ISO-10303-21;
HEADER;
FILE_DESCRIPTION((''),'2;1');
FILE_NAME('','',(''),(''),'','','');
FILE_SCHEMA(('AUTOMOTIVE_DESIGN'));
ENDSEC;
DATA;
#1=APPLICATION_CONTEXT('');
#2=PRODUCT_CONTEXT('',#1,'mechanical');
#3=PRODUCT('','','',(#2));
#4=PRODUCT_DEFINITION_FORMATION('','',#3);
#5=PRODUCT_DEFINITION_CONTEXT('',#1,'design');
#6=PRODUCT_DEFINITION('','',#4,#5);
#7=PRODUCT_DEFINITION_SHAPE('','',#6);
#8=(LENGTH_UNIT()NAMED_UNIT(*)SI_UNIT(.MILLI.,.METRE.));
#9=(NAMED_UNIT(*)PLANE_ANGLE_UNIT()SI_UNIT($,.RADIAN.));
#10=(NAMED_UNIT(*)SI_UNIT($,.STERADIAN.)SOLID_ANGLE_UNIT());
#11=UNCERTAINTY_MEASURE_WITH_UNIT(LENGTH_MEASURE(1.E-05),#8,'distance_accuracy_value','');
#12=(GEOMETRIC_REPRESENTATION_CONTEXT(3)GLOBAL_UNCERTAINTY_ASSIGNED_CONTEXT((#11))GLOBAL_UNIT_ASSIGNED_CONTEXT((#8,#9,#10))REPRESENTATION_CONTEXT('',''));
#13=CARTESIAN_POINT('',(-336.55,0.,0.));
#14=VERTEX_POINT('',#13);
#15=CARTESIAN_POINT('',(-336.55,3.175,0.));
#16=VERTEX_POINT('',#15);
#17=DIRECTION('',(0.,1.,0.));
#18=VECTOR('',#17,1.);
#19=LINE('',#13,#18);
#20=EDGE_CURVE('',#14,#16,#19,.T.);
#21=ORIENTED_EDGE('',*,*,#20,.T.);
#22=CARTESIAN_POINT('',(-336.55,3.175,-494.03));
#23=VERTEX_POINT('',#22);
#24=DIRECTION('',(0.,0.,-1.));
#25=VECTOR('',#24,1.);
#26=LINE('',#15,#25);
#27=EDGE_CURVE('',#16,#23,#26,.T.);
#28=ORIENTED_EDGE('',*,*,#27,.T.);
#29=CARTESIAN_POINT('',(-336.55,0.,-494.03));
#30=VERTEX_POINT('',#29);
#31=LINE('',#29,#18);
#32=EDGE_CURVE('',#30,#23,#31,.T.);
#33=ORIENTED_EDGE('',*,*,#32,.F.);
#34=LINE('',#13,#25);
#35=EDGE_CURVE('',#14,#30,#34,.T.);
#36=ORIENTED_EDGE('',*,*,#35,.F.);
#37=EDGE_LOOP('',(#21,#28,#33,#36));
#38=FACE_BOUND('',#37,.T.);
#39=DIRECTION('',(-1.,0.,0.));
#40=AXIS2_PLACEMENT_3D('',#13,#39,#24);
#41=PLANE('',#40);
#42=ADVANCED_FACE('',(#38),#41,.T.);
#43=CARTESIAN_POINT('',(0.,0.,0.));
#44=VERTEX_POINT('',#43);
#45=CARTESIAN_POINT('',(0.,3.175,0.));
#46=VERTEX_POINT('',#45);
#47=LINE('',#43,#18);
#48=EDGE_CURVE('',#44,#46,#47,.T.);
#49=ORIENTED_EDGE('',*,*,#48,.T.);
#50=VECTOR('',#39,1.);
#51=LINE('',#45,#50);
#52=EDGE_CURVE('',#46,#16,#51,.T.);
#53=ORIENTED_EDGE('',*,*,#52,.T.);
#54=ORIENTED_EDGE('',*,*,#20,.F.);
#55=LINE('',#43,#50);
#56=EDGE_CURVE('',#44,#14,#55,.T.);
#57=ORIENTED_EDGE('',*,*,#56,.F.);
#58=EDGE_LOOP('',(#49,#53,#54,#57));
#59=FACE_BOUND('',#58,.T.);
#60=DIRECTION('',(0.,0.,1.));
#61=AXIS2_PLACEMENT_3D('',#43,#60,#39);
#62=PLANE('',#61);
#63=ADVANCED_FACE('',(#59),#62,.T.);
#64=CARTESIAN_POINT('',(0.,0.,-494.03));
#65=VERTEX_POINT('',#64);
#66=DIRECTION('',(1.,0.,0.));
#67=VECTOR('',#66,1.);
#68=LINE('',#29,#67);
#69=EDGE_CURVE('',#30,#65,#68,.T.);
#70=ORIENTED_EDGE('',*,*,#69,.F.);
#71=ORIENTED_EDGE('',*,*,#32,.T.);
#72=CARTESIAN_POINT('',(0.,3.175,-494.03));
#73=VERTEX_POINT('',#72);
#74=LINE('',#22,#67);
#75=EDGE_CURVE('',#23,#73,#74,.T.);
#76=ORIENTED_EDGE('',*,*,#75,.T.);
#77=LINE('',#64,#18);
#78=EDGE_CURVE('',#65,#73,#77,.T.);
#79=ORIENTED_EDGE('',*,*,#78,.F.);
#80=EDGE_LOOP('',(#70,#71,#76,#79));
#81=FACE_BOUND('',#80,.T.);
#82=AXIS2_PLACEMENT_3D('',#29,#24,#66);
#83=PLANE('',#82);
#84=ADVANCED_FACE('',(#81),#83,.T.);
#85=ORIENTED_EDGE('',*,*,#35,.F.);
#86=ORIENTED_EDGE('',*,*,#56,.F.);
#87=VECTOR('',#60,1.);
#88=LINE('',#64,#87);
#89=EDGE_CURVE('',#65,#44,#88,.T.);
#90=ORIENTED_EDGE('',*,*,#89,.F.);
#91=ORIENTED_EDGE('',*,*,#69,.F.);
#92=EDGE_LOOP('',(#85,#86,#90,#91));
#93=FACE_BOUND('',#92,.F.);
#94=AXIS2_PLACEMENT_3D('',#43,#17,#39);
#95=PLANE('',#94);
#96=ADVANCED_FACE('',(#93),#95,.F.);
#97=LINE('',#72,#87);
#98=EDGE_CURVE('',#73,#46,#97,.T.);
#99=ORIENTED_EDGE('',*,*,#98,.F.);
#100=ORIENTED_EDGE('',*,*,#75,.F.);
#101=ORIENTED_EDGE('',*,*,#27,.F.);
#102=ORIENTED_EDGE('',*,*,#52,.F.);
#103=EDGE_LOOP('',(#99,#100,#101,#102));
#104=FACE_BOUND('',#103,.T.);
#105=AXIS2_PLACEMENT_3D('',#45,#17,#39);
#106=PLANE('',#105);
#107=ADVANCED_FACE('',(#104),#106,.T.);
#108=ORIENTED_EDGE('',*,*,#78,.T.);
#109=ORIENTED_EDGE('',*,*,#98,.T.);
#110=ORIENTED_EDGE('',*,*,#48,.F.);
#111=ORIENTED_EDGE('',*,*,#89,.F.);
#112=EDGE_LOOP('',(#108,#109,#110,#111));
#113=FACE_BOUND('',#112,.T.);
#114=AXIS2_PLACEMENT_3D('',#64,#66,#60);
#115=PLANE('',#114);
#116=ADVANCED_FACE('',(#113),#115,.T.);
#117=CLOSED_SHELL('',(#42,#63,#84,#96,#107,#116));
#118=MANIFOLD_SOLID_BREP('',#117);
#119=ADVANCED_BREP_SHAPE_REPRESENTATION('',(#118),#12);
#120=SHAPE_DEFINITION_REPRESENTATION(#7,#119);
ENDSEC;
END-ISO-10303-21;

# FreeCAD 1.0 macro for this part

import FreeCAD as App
import Part
import Sketcher
from FreeCAD import Vector
Q = App.Units.Quantity


def add_polygon(sketch, points):
    """Adds a closed chain of lines whose ends are joined by coincident constraints."""
    first, n = sketch.GeometryCount, len(points)
    for a, b in zip(points, points[1:] + points[:1]):
        sketch.addGeometry(Part.LineSegment(App.Vector(*a, 0), App.Vector(*b, 0)), False)
    for i in range(n):
        sketch.addConstraint(Sketcher.Constraint("Coincident", first + i, 2, first + (i + 1) % n, 1))

doc = App.newDocument("Part")
body = doc.addObject("PartDesign::Body", "Body")

# Sketch on XZ plane
sketch1 = body.newObject("Sketcher::SketchObject", "Sketch")
sketch1.AttachmentSupport = (doc.getObject("XZ_Plane"), [""])
sketch1.MapMode = "FlatFace"
add_polygon(sketch1, [(-337, 0), (0, 0), (0, -494), (-337, -494)])  # lines 0-3
sketch1.addConstraint(Sketcher.Constraint("Horizontal", 0))
sketch1.addConstraint(Sketcher.Constraint("Vertical", 1))
sketch1.addConstraint(Sketcher.Constraint("Horizontal", 2))
sketch1.addConstraint(Sketcher.Constraint("Vertical", 3))
sketch1.addConstraint(Sketcher.Constraint("Coincident", 0, 2, -1, 1))
sketch1.addConstraint(Sketcher.Constraint("DistanceX", 0, 1, 0, 2, Q("13.25 in")))
sketch1.addConstraint(Sketcher.Constraint("DistanceY", 1, 2, 1, 1, Q("19.45 in")))
pad1 = body.newObject("PartDesign::Pad", "Pad")
pad1.Profile = sketch1
pad1.Length = Q("0.125 in")
pad1.Reversed = True

doc.recompute()
